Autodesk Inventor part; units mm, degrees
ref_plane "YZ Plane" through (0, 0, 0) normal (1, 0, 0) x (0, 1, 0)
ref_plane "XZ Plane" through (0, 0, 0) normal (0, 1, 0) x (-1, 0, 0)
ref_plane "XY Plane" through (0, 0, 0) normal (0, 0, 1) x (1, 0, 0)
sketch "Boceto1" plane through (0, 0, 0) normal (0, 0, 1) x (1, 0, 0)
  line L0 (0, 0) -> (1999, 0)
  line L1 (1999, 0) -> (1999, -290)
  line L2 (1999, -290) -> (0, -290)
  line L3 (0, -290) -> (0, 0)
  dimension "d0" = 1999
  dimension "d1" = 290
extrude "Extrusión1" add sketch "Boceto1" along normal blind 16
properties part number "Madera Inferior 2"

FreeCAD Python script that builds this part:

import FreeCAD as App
import Part
import Sketcher

V = App.Vector
Q = App.Units.Quantity


def add_polygon(sketch, points):
    """Adds a closed chain of lines whose ends are joined by coincident constraints."""
    first, n = sketch.GeometryCount, len(points)
    for a, b in zip(points, points[1:] + points[:1]):
        sketch.addGeometry(Part.LineSegment(App.Vector(*a, 0), App.Vector(*b, 0)), False)
    for i in range(n):
        sketch.addConstraint(Sketcher.Constraint("Coincident", first + i, 2, first + (i + 1) % n, 1))

doc = App.newDocument("Part")
body = doc.addObject("PartDesign::Body", "Body")

# Sketch on XY plane
sketch1 = body.newObject("Sketcher::SketchObject", "Sketch")
sketch1.AttachmentSupport = (doc.getObject("XY_Plane"), [""])
sketch1.MapMode = "FlatFace"
add_polygon(sketch1, [(1999, 0), (0, 0), (0, -290), (1999, -290)])  # lines 0-3
sketch1.addConstraint([
    Sketcher.Constraint("Horizontal", 0),
    Sketcher.Constraint("Vertical", 1),
    Sketcher.Constraint("Horizontal", 2),
    Sketcher.Constraint("Vertical", 3),
    Sketcher.Constraint("Coincident", 0, 2, -1, 1),
    Sketcher.Constraint("DistanceX", 0, 2, 0, 1, Q("1999 mm")),
    Sketcher.Constraint("DistanceY", 1, 2, 1, 1, Q("290 mm")),
])
pad1 = body.newObject("PartDesign::Pad", "Pad")
pad1.Profile = sketch1
pad1.Length = 16

doc.recompute()
